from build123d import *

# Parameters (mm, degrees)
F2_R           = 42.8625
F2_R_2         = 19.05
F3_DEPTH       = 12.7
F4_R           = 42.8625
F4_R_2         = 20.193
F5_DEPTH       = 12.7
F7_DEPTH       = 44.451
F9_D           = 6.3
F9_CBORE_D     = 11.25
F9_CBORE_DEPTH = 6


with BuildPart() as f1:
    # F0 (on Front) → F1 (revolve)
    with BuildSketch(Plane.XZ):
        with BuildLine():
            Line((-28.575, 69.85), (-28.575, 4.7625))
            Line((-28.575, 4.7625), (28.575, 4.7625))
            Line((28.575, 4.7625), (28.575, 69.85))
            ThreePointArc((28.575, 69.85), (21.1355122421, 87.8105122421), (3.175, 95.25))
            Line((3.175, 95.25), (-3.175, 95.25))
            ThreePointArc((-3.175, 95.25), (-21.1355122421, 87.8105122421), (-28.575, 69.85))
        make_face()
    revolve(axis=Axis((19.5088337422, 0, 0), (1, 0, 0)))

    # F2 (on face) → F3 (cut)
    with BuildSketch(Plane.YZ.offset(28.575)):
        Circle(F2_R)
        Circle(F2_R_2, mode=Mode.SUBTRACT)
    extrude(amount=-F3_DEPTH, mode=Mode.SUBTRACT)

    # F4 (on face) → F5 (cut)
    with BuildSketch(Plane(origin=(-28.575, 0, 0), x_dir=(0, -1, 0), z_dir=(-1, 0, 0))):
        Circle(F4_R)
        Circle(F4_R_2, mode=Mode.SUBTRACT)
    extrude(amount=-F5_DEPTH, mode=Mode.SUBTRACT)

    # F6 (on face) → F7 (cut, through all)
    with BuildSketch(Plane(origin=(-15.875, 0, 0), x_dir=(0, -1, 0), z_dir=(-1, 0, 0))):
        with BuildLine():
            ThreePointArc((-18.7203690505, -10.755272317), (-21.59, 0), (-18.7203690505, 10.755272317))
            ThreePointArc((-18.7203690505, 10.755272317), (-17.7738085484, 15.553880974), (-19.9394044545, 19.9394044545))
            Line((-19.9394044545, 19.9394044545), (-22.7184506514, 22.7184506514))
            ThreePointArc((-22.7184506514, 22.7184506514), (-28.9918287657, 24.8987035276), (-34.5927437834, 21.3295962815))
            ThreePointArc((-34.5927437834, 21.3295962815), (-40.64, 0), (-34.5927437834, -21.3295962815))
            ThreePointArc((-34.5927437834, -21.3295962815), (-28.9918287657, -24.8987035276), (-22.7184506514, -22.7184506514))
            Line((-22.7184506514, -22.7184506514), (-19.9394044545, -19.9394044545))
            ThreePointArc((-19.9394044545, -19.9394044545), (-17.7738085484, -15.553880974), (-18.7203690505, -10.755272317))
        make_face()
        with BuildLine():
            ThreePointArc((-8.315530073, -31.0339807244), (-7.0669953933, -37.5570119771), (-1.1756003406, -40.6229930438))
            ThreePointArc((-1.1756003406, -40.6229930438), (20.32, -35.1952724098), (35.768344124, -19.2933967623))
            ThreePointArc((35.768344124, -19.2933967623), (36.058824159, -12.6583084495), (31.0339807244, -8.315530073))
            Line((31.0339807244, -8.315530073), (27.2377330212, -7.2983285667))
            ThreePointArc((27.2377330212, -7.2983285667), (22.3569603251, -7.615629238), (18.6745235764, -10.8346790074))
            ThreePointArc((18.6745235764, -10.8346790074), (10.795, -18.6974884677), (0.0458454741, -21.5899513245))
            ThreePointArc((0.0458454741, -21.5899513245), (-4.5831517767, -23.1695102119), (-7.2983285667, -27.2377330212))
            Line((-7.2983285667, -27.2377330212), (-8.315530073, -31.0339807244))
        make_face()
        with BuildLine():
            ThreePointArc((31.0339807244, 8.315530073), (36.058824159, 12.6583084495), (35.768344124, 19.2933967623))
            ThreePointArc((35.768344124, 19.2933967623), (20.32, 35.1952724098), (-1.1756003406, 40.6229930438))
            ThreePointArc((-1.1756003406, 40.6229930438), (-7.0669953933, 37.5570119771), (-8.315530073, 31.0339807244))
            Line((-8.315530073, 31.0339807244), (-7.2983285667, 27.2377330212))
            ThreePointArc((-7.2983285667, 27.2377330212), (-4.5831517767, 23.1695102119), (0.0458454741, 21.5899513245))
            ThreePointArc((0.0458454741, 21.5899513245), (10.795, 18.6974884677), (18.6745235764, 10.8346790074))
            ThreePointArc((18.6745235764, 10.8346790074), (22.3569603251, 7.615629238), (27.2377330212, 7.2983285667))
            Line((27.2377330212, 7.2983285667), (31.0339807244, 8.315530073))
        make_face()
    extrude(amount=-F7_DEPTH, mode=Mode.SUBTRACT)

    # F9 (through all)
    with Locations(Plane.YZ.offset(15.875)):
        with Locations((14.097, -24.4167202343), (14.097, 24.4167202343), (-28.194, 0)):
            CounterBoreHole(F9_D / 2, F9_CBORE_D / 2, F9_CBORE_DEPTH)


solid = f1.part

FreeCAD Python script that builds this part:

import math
import FreeCAD as App
import Part
import Sketcher

V = App.Vector
Q = App.Units.Quantity

doc = App.newDocument("Part")
body = doc.addObject("PartDesign::Body", "Body")

sketch1 = body.newObject("Sketcher::SketchObject", "Sketch")
sketch1.AttachmentSupport = (doc.getObject("XZ_Plane"), [""])
sketch1.MapMode = "FlatFace"
sketch1.addGeometry([
    Part.LineSegment(V(-28.575, 69.85, 0), V(-28.575, 4.7625, 0)),
    Part.LineSegment(V(-28.575, 4.7625, 0), V(28.575, 4.7625, 0)),
    Part.LineSegment(V(28.575, 4.7625, 0), V(28.575, 69.85, 0)),
    Part.ArcOfCircle(Part.Circle(V(3.175, 69.85, 0), V(0, 0, 1), 25.4), math.radians(0), math.radians(90)),
    Part.LineSegment(V(3.175, 95.25, 0), V(-3.175, 95.25, 0)),
    Part.ArcOfCircle(Part.Circle(V(-3.175, 69.85, 0), V(0, 0, 1), 25.4), math.radians(90), math.radians(180)),
], False)
sketch1.addConstraint([
    Sketcher.Constraint("Coincident", 0, 2, 1, 1),
    Sketcher.Constraint("Coincident", 1, 2, 2, 1),
    Sketcher.Constraint("Tangent", 2, 2, 3, 1),
    Sketcher.Constraint("Tangent", 3, 2, 4, 1),
    Sketcher.Constraint("Tangent", 4, 2, 5, 1),
    Sketcher.Constraint("Tangent", 5, 2, 0, 1),
    Sketcher.Constraint("Vertical", 0),
    Sketcher.Constraint("Horizontal", 1),
    Sketcher.Constraint("Vertical", 2),
    Sketcher.Constraint("Horizontal", 4),
    Sketcher.Constraint("Equal", 3, 5),
    Sketcher.Constraint("Radius", 3, Q("1 in")),
    Sketcher.Constraint("DistanceX", 1, 1, 1, 2, Q("2.25 in")),
    Sketcher.Constraint("DistanceY", 0, 2, 0, 1, Q("2.5625 in")),
    Sketcher.Constraint("DistanceY", -1, 1, 3, 3, Q("2.75 in")),
    Sketcher.Constraint("DistanceX", -1, 1, 3, 3, Q("0.125 in")),
])
revolution = body.newObject("PartDesign::Revolution", "Revolution")
revolution.Profile = sketch1
revolution.ReferenceAxis = (sketch1, ["H_Axis"])
revolution.Angle = 360

sketch2 = body.newObject("Sketcher::SketchObject", "Sketch001")
sketch2.AttachmentSupport = (doc.getObject("YZ_Plane"), [""])
sketch2.MapMode = "FlatFace"
sketch2.AttachmentOffset = App.Placement(V(0, 0, 1.125 * 25.4), App.Rotation())
sketch2.addGeometry([
    Part.Circle(V(0, 0, 0), V(0, 0, 1), 42.8625),
    Part.Circle(V(0, 0, 0), V(0, 0, 1), 19.05),
], False)
sketch2.addConstraint([
    Sketcher.Constraint("Coincident", 0, 3, -1, 1),
    Sketcher.Constraint("Coincident", 1, 3, -1, 1),
    Sketcher.Constraint("Diameter", 1, Q("1.5 in")),
    Sketcher.Constraint("Diameter", 0, Q("3.375 in")),
])
pocket1 = body.newObject("PartDesign::Pocket", "Pocket")
pocket1.Profile = sketch2
pocket1.Length = Q("0.5 in")

sketch3 = body.newObject("Sketcher::SketchObject", "Sketch002")
sketch3.AttachmentSupport = (doc.getObject("YZ_Plane"), [""])
sketch3.MapMode = "FlatFace"
sketch3.AttachmentOffset = App.Placement(V(0, 0, -1.125 * 25.4), App.Rotation())
sketch3.addGeometry([
    Part.Circle(V(0, 0, 0), V(0, 0, 1), 42.8625),
    Part.Circle(V(0, 0, 0), V(0, 0, 1), 20.193),
], False)
sketch3.addConstraint([
    Sketcher.Constraint("Coincident", 0, 3, -1, 1),
    Sketcher.Constraint("Coincident", 1, 3, -1, 1),
    Sketcher.Constraint("Diameter", 1, Q("1.59 in")),
    Sketcher.Constraint("Diameter", 0, Q("3.375 in")),
])
pocket2 = body.newObject("PartDesign::Pocket", "Pocket001")
pocket2.Profile = sketch3
pocket2.Length = Q("0.5 in")
pocket2.Reversed = True

sketch4 = body.newObject("Sketcher::SketchObject", "Sketch003")
sketch4.AttachmentSupport = (doc.getObject("YZ_Plane"), [""])
sketch4.MapMode = "FlatFace"
sketch4.AttachmentOffset = App.Placement(V(0, 0, -0.625 * 25.4), App.Rotation())
sketch4.addGeometry([
    Part.ArcOfCircle(Part.Circle(V(0, 0, 0), V(0, 0, 1), 21.59), math.radians(-29.878335), math.radians(29.878335)),
    Part.ArcOfCircle(Part.Circle(V(25.327558, 14.551251, 0), V(0, 0, 1), 7.62), math.radians(135), math.radians(209.878335)),
    Part.LineSegment(V(19.939404, 19.939404, 0), V(22.718451, 22.718451, 0)),
    Part.ArcOfCircle(Part.Circle(V(28.106604, 17.330297, 0), V(0, 0, 1), 7.62), math.radians(31.657636), math.radians(135)),
    Part.ArcOfCircle(Part.Circle(V(0, 0, 0), V(0, 0, 1), 40.64), math.radians(-31.657636), math.radians(31.657636)),
    Part.ArcOfCircle(Part.Circle(V(28.106604, -17.330297, 0), V(0, 0, 1), 7.62), math.radians(-135), math.radians(-31.657636)),
    Part.LineSegment(V(22.718451, -22.718451, 0), V(19.939404, -19.939404, 0)),
    Part.ArcOfCircle(Part.Circle(V(25.327558, -14.551251, 0), V(0, 0, 1), 7.62), math.radians(150.121665), math.radians(225)),
    Part.ArcOfCircle(Part.Circle(V(0.955175, -33.006182, 0), V(0, 0, 1), 7.62), math.radians(-88.342364), math.radians(15)),
    Part.ArcOfCircle(Part.Circle(V(0, 0, 0), V(0, 0, 1), 40.64), math.radians(-151.657636), math.radians(-88.342364)),
    Part.ArcOfCircle(Part.Circle(V(-29.06178, -15.675885, 0), V(0, 0, 1), 7.62), math.radians(105), math.radians(208.342364)),
    Part.LineSegment(V(-31.033981, -8.31553, 0), V(-27.237733, -7.298329, 0)),
    Part.ArcOfCircle(Part.Circle(V(-25.265532, -14.658683, 0), V(0, 0, 1), 7.62), math.radians(30.121665), math.radians(105)),
    Part.ArcOfCircle(Part.Circle(V(0, 0, 0), V(0, 0, 1), 21.59), math.radians(-149.878335), math.radians(-90.121665)),
    Part.ArcOfCircle(Part.Circle(V(-0.062026, -29.209934, 0), V(0, 0, 1), 7.62), math.radians(15), math.radians(89.878335)),
    Part.LineSegment(V(7.298329, -27.237733, 0), V(8.31553, -31.033981, 0)),
    Part.ArcOfCircle(Part.Circle(V(-29.06178, 15.675885, 0), V(0, 0, 1), 7.62), math.radians(151.657636), math.radians(255)),
    Part.ArcOfCircle(Part.Circle(V(0, 0, 0), V(0, 0, 1), 40.64), math.radians(88.342364), math.radians(151.657636)),
    Part.ArcOfCircle(Part.Circle(V(0.955175, 33.006182, 0), V(0, 0, 1), 7.62), math.radians(-15), math.radians(88.342364)),
    Part.LineSegment(V(8.31553, 31.033981, 0), V(7.298329, 27.237733, 0)),
    Part.ArcOfCircle(Part.Circle(V(-0.062026, 29.209934, 0), V(0, 0, 1), 7.62), math.radians(-89.878335), math.radians(-15)),
    Part.ArcOfCircle(Part.Circle(V(0, 0, 0), V(0, 0, 1), 21.59), math.radians(90.121665), math.radians(149.878335)),
    Part.ArcOfCircle(Part.Circle(V(-25.265532, 14.658683, 0), V(0, 0, 1), 7.62), math.radians(-105), math.radians(-30.121665)),
    Part.LineSegment(V(-27.237733, 7.298329, 0), V(-31.033981, 8.31553, 0)),
], False)
sketch4.addConstraint([
    Sketcher.Constraint("Tangent", 0, 2, 1, 2),
    Sketcher.Constraint("Tangent", 1, 1, 2, 1),
    Sketcher.Constraint("Tangent", 2, 2, 3, 2),
    Sketcher.Constraint("Tangent", 3, 1, 4, 2),
    Sketcher.Constraint("Tangent", 4, 1, 5, 2),
    Sketcher.Constraint("Tangent", 5, 1, 6, 1),
    Sketcher.Constraint("Tangent", 6, 2, 7, 2),
    Sketcher.Constraint("Tangent", 7, 1, 0, 1),
    Sketcher.Constraint("Tangent", 8, 1, 9, 2),
    Sketcher.Constraint("Tangent", 9, 1, 10, 2),
    Sketcher.Constraint("Tangent", 10, 1, 11, 1),
    Sketcher.Constraint("Tangent", 11, 2, 12, 2),
    Sketcher.Constraint("Tangent", 12, 1, 13, 1),
    Sketcher.Constraint("Tangent", 13, 2, 14, 2),
    Sketcher.Constraint("Tangent", 14, 1, 15, 1),
    Sketcher.Constraint("Tangent", 15, 2, 8, 2),
    Sketcher.Constraint("Tangent", 16, 1, 17, 2),
    Sketcher.Constraint("Tangent", 17, 1, 18, 2),
    Sketcher.Constraint("Tangent", 18, 1, 19, 1),
    Sketcher.Constraint("Tangent", 19, 2, 20, 2),
    Sketcher.Constraint("Tangent", 20, 1, 21, 1),
    Sketcher.Constraint("Tangent", 21, 2, 22, 2),
    Sketcher.Constraint("Tangent", 22, 1, 23, 1),
    Sketcher.Constraint("Tangent", 23, 2, 16, 2),
    Sketcher.Constraint("Coincident", 0, 3, -1, 1),
    Sketcher.Constraint("Coincident", 4, 3, -1, 1),
    Sketcher.Constraint("Coincident", 9, 3, -1, 1),
    Sketcher.Constraint("Coincident", 13, 3, -1, 1),
    Sketcher.Constraint("Coincident", 17, 3, -1, 1),
    Sketcher.Constraint("Coincident", 21, 3, -1, 1),
    Sketcher.Constraint("Equal", 1, 3),
    Sketcher.Constraint("Equal", 3, 5),
    Sketcher.Constraint("Equal", 5, 7),
    Sketcher.Constraint("Equal", 7, 8),
    Sketcher.Constraint("Equal", 4, 9),
    Sketcher.Constraint("Equal", 8, 10),
    Sketcher.Constraint("Equal", 10, 12),
    Sketcher.Constraint("Equal", 0, 13),
    Sketcher.Constraint("Equal", 12, 14),
    Sketcher.Constraint("Equal", 14, 16),
    Sketcher.Constraint("Equal", 9, 17),
    Sketcher.Constraint("Equal", 16, 18),
    Sketcher.Constraint("Equal", 18, 20),
    Sketcher.Constraint("Equal", 13, 21),
    Sketcher.Constraint("Equal", 20, 22),
    Sketcher.Constraint("Symmetric", 2, 2, 5, 1, -1),
    Sketcher.Constraint("Symmetric", 15, 2, 18, 1, -1),
    Sketcher.Constraint("Symmetric", 11, 2, 22, 1, -1),
    Sketcher.Constraint("Perpendicular", 2, 6),
    Sketcher.Constraint("Perpendicular", 11, 15),
    Sketcher.Constraint("Equal", 6, 11),
    Sketcher.Constraint("Equal", 11, 15),
    Sketcher.Constraint("Radius", 1, Q("0.3 in")),
    Sketcher.Constraint("Radius", 4, Q("1.6 in")),
    Sketcher.Constraint("Radius", 0, Q("0.85 in")),
    Sketcher.Constraint("Angle", 11, Q("15 deg")),
    Sketcher.Constraint("DistanceX", -1, 1, 8, 1, Q("1.1756 mm")),
])
pocket3 = body.newObject("PartDesign::Pocket", "Pocket002")
pocket3.Profile = sketch4
pocket3.Type = "ThroughAll"
pocket3.Reversed = True

sketch5 = body.newObject("Sketcher::SketchObject", "Sketch004")
sketch5.AttachmentSupport = (doc.getObject("YZ_Plane"), [""])
sketch5.MapMode = "FlatFace"
sketch5.AttachmentOffset = App.Placement(V(0, 0, 0.625 * 25.4), App.Rotation())
sketch5.addGeometry([
    Part.Circle(V(14.097, -24.41672, 0), V(0, 0, 1), 3.15),
    Part.Circle(V(14.097, 24.41672, 0), V(0, 0, 1), 3.15),
    Part.Circle(V(-28.194, 0, 0), V(0, 0, 1), 3.15),
], False)
sketch5.addConstraint([
    Sketcher.Constraint("Equal", 0, 1),
    Sketcher.Constraint("Equal", 1, 2),
    Sketcher.Constraint("Symmetric", 0, 3, 1, 3, -1),
    Sketcher.Constraint("PointOnObject", 2, 3, -1),
    Sketcher.Constraint("Diameter", 0, Q("6.3 mm")),
    Sketcher.Constraint("DistanceX", 2, 3, -1, 1, Q("1.11 in")),
    Sketcher.Constraint("DistanceX", -1, 1, 0, 3, Q("0.555 in")),
    Sketcher.Constraint("DistanceY", 0, 3, -1, 1, Q("24.41672 mm")),
])
doc.recompute()
hole = body.newObject("PartDesign::Hole", "Hole")
hole.Profile = sketch5
hole.ThreadType = "None"
hole.Diameter = 6.3
hole.DepthType = "ThroughAll"
hole.HoleCutType = "Counterbore"
hole.HoleCutDiameter = 11.25
hole.HoleCutDepth = 6

doc.recompute()
